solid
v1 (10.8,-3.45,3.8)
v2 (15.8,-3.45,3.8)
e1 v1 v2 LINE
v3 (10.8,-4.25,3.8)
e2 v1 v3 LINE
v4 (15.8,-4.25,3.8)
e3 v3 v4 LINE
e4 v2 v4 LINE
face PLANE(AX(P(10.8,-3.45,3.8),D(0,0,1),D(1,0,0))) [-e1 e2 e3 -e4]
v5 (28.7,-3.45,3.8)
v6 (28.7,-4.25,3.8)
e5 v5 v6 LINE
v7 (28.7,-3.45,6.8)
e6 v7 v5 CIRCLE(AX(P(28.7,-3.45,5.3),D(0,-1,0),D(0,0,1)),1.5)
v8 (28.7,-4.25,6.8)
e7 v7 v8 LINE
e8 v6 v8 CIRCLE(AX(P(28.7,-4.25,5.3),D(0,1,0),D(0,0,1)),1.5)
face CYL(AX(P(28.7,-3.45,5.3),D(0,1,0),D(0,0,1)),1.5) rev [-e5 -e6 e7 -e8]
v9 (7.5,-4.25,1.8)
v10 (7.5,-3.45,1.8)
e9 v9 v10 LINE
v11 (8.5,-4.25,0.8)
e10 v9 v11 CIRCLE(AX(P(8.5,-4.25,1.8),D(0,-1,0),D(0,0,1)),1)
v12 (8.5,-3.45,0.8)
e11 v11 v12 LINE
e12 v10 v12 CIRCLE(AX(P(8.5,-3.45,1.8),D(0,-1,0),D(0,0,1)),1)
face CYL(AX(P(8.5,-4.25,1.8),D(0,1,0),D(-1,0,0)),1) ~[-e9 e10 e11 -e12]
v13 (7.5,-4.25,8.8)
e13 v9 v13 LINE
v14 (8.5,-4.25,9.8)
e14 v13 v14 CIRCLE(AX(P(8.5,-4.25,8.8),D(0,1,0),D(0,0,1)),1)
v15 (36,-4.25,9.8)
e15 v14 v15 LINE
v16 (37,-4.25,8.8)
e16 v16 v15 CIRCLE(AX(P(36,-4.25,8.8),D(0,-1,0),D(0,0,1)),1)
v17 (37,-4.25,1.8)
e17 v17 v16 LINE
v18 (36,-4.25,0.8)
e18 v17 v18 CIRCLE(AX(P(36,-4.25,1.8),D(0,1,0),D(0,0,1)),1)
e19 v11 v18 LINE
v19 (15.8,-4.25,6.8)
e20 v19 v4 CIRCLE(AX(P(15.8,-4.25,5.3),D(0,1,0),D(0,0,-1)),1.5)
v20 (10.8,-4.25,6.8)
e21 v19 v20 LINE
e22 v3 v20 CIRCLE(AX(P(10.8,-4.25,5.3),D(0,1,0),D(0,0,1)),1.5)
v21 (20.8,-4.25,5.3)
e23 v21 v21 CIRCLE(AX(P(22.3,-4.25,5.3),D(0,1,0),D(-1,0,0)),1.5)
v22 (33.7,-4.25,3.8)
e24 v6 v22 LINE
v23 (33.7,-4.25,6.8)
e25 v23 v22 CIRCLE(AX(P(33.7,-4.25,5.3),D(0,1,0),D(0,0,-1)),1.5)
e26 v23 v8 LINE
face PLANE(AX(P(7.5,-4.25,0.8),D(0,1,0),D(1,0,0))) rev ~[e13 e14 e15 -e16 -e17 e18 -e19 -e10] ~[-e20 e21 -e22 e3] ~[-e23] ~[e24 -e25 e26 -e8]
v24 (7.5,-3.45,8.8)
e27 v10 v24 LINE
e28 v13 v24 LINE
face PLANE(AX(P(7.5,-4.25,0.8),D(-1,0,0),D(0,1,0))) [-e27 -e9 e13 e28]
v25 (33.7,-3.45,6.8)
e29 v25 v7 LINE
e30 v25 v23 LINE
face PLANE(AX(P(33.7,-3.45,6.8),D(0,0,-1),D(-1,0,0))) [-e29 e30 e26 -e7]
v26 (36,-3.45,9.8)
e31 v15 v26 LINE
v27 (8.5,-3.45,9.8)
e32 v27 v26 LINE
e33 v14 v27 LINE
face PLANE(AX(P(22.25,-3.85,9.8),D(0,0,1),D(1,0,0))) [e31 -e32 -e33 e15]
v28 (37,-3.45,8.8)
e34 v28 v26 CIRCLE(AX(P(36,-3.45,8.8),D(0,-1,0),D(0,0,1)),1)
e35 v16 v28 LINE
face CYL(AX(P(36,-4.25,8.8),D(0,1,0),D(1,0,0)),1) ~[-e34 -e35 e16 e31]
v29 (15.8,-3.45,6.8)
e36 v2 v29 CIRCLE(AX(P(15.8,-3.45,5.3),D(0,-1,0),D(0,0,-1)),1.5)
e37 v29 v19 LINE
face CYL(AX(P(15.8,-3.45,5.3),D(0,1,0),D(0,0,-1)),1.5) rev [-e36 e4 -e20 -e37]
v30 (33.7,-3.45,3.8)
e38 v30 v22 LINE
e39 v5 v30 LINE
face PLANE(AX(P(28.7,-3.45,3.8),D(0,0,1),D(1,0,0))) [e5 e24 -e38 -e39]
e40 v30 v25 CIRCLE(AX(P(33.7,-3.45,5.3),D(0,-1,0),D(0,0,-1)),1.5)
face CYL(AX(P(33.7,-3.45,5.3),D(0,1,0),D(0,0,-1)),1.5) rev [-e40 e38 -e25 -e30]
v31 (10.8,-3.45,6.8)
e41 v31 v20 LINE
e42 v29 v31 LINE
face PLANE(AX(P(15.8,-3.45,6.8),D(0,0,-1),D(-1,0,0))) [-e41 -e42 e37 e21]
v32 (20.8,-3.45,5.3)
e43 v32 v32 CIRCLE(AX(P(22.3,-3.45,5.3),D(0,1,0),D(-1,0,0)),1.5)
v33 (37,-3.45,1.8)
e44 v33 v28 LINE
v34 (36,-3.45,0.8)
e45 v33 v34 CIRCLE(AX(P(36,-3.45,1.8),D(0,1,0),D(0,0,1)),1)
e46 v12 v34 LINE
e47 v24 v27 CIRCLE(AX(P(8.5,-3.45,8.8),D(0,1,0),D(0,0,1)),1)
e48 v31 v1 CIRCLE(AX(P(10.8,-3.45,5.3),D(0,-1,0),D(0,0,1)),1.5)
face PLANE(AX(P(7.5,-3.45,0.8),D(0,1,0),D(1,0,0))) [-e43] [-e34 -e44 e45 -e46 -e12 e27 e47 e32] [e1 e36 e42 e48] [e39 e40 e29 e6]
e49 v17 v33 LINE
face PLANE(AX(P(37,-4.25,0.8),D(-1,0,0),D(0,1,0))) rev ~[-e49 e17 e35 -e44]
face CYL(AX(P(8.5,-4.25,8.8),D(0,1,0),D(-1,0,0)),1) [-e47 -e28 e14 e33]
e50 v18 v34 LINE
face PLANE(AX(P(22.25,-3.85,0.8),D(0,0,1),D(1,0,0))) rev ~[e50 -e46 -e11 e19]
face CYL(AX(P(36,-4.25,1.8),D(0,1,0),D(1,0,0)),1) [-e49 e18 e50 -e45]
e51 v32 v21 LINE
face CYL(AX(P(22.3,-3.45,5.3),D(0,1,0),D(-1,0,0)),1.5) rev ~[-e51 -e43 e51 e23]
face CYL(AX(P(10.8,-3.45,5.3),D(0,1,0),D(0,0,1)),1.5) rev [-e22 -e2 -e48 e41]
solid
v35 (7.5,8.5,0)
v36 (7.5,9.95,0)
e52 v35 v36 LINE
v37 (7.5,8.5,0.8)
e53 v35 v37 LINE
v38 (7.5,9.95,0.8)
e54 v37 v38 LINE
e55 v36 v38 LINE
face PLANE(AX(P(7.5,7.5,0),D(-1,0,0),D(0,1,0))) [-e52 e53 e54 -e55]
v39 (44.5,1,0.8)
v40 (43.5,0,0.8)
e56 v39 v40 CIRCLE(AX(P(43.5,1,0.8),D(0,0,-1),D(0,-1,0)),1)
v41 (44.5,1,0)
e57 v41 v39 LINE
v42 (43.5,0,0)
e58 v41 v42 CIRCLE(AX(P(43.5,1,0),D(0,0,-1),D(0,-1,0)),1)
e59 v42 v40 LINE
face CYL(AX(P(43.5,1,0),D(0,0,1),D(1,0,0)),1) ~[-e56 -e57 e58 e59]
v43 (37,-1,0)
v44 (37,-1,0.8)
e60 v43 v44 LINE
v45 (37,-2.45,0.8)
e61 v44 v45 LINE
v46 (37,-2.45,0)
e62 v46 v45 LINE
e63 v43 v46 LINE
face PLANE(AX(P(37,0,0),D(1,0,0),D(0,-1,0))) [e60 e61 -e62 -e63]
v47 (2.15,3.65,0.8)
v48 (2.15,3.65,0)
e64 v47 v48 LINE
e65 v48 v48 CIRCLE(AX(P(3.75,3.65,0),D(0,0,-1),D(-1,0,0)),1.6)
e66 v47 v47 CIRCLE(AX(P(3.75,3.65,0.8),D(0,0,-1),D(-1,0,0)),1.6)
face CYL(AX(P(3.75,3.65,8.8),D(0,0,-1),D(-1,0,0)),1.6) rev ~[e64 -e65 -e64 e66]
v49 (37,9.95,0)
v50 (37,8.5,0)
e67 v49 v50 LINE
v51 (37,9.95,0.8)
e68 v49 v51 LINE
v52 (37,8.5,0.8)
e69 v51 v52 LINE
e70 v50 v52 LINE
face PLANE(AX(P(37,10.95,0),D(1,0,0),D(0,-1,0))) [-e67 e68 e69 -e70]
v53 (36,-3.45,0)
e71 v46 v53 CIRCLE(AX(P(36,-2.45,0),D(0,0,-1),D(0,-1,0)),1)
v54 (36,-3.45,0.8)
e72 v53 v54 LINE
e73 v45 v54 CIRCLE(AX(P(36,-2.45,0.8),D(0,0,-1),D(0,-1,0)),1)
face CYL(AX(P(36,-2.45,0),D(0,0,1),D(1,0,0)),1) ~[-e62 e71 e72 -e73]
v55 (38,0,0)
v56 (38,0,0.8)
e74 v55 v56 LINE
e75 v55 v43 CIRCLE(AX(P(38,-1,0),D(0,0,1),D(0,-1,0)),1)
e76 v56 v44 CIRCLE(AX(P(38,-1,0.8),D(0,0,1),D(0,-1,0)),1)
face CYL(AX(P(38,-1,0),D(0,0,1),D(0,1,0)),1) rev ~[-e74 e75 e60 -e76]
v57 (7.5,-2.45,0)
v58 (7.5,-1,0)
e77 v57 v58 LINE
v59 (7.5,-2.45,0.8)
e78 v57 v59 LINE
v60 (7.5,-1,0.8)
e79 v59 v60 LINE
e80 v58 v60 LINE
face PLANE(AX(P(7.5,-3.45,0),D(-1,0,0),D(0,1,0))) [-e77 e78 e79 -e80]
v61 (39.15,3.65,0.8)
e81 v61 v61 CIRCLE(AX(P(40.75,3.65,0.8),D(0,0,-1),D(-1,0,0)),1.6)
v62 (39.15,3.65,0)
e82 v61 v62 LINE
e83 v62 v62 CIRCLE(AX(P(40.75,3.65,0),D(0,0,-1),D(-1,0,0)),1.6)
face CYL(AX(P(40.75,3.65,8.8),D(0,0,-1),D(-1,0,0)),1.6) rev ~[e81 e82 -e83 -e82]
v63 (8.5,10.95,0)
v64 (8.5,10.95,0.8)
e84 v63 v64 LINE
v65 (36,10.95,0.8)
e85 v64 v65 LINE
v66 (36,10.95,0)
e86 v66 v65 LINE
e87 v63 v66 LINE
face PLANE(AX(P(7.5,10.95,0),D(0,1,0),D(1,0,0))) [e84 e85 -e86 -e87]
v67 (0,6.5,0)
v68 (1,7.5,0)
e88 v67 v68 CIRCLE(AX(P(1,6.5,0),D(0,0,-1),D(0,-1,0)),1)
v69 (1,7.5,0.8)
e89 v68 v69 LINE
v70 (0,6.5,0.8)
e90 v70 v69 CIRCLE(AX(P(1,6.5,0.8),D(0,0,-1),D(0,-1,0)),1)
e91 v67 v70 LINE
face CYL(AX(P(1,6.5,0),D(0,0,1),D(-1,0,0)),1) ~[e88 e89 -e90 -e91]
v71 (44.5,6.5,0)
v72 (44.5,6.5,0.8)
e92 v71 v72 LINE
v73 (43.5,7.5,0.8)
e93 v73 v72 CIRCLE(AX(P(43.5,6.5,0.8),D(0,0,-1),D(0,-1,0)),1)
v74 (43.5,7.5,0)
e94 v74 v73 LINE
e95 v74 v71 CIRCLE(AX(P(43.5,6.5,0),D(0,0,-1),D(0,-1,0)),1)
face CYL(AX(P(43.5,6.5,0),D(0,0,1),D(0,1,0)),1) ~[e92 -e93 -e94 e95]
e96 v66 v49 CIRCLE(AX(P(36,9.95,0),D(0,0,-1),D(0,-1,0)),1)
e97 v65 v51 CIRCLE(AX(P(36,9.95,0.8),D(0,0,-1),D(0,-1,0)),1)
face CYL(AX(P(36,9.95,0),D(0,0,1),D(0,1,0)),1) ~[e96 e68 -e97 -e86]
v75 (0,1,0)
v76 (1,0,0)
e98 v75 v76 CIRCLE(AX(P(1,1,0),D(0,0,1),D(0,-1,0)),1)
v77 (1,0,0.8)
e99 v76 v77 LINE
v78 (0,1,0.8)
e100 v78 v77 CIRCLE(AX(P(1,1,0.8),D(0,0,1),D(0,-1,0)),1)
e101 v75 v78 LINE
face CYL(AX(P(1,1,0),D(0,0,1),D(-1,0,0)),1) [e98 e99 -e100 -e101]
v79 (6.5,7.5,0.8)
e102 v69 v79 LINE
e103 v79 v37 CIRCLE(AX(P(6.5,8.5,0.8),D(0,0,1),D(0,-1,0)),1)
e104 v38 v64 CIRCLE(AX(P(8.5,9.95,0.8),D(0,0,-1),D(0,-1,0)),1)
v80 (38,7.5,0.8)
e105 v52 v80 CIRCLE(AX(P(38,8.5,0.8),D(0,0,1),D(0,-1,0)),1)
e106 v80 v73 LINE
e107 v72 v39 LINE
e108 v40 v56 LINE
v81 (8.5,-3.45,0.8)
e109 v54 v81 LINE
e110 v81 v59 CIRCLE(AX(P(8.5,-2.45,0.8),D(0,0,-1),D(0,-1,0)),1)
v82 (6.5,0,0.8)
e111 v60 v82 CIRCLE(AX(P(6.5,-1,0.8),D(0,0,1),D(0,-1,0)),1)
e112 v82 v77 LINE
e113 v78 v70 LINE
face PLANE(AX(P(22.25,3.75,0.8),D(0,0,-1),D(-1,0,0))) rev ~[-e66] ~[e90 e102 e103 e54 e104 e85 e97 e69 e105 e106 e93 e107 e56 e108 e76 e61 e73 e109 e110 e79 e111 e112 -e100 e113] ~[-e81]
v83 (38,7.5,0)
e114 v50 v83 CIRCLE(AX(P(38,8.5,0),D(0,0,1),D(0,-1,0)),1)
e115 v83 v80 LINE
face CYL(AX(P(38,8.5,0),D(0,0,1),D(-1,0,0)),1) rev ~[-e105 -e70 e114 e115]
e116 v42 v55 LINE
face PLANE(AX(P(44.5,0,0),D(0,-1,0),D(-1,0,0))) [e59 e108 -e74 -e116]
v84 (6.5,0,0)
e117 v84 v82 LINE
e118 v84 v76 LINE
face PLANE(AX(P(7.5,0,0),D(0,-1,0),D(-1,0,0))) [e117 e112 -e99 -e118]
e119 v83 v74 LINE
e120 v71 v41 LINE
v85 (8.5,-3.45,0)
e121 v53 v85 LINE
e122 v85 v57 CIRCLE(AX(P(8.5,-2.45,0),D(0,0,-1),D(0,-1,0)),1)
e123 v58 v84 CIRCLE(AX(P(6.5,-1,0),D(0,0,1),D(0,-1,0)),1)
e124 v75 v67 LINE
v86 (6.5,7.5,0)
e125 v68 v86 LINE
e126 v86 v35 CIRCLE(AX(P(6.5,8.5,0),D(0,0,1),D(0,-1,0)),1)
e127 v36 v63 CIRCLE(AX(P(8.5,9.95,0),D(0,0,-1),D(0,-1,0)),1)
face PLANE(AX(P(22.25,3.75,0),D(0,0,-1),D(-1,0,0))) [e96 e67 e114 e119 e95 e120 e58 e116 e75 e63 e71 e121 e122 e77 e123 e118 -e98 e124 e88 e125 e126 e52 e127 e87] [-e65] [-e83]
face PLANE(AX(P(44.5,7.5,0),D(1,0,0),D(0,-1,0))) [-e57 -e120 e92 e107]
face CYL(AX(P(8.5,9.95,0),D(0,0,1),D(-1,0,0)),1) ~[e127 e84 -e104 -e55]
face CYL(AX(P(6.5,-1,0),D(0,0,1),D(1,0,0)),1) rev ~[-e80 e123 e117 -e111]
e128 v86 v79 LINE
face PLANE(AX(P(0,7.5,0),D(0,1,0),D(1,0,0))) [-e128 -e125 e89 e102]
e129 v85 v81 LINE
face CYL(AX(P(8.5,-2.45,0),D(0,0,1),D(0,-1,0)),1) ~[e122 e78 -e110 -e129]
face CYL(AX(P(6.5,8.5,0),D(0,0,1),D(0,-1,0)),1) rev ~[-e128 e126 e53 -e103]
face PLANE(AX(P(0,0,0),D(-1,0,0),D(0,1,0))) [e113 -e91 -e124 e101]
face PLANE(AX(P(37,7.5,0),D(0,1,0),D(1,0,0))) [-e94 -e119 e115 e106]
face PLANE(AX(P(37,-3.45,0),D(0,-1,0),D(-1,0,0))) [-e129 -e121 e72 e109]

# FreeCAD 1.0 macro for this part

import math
import FreeCAD as App
import Part
import Sketcher
Q = App.Units.Quantity


def edges_at(feature, points):
    """Names of the edges that pass closest to the given points."""
    edges = feature.Shape.Edges
    near = lambda p: min(range(len(edges)), key=lambda i: edges[i].distToShape(Part.Vertex(*p))[0])
    return sorted({f"Edge{near(p) + 1}" for p in points})

doc = App.newDocument("Part")
params = doc.addObject("Spreadsheet::Sheet", "Params")
for row, (alias, value) in enumerate([
    ("sketch1_width", "7.5 mm"),
    ("sketch1_width2", "29.5 mm"),
    ("sketch1_height", "3.45 mm"),
    ("pad1_length", "0.8 mm"),
    ("fillet_radius", "1 mm"),
    ("sketch2_diameter", "3.2 mm"),
    ("hole_diameter", "3.2 mm"),
    ("hole_depth", "8 mm"),
    ("sketch3_width", "29.5 mm"),
    ("sketch3_height", "0.8 mm"),
    ("pad2_length", "9 mm"),
    ("fillet2_radius", "1 mm"),
    ("sketch4_diameter", "3 mm"),
    ("sketch4_width", "5 mm"),
    ("pocket1_length", "9 mm"),
], start=1):
    params.set(f"A{row}", alias)
    params.set(f"B{row}", "=" + value)
    params.setAlias(f"B{row}", alias)

body = doc.addObject("PartDesign::Body", "Body")

sketch1 = body.newObject("Sketcher::SketchObject", "Sketch")
sketch1.AttachmentSupport = (doc.getObject("XY_Plane"), [""])
sketch1.MapMode = "FlatFace"
sketch1.addGeometry(Part.LineSegment(App.Vector(0, 7.5, 0), App.Vector(0, 0, 0)), False)
sketch1.addGeometry(Part.LineSegment(App.Vector(0, 0, 0), App.Vector(7.5, 0, 0)), False)
sketch1.addGeometry(Part.LineSegment(App.Vector(7.5, 0, 0), App.Vector(7.5, -3.5, 0)), False)
sketch1.addGeometry(Part.LineSegment(App.Vector(7.5, -3.5, 0), App.Vector(37, -3.5, 0)), False)
sketch1.addGeometry(Part.LineSegment(App.Vector(37, -3.5, 0), App.Vector(37, 0, 0)), False)
sketch1.addGeometry(Part.LineSegment(App.Vector(37, 0, 0), App.Vector(44.5, 0, 0)), False)
sketch1.addGeometry(Part.LineSegment(App.Vector(44.5, 0, 0), App.Vector(44.5, 7.5, 0)), False)
sketch1.addGeometry(Part.LineSegment(App.Vector(44.5, 7.5, 0), App.Vector(37, 7.5, 0)), False)
sketch1.addGeometry(Part.LineSegment(App.Vector(37, 7.5, 0), App.Vector(37, 10.9, 0)), False)
sketch1.addGeometry(Part.LineSegment(App.Vector(37, 10.9, 0), App.Vector(7.5, 10.9, 0)), False)
sketch1.addGeometry(Part.LineSegment(App.Vector(7.5, 10.9, 0), App.Vector(7.5, 7.5, 0)), False)
sketch1.addGeometry(Part.LineSegment(App.Vector(7.5, 7.5, 0), App.Vector(0, 7.5, 0)), False)
sketch1.addConstraint(Sketcher.Constraint("Coincident", 0, 2, 1, 1))
sketch1.addConstraint(Sketcher.Constraint("Coincident", 1, 2, 2, 1))
sketch1.addConstraint(Sketcher.Constraint("Coincident", 2, 2, 3, 1))
sketch1.addConstraint(Sketcher.Constraint("Coincident", 3, 2, 4, 1))
sketch1.addConstraint(Sketcher.Constraint("Coincident", 4, 2, 5, 1))
sketch1.addConstraint(Sketcher.Constraint("Coincident", 5, 2, 6, 1))
sketch1.addConstraint(Sketcher.Constraint("Coincident", 6, 2, 7, 1))
sketch1.addConstraint(Sketcher.Constraint("Coincident", 7, 2, 8, 1))
sketch1.addConstraint(Sketcher.Constraint("Coincident", 8, 2, 9, 1))
sketch1.addConstraint(Sketcher.Constraint("Coincident", 9, 2, 10, 1))
sketch1.addConstraint(Sketcher.Constraint("Coincident", 10, 2, 11, 1))
sketch1.addConstraint(Sketcher.Constraint("Coincident", 11, 2, 0, 1))
sketch1.addConstraint(Sketcher.Constraint("Vertical", 0))
sketch1.addConstraint(Sketcher.Constraint("Horizontal", 1))
sketch1.addConstraint(Sketcher.Constraint("Vertical", 2))
sketch1.addConstraint(Sketcher.Constraint("Horizontal", 3))
sketch1.addConstraint(Sketcher.Constraint("Vertical", 4))
sketch1.addConstraint(Sketcher.Constraint("Horizontal", 5))
sketch1.addConstraint(Sketcher.Constraint("Vertical", 6))
sketch1.addConstraint(Sketcher.Constraint("Horizontal", 7))
sketch1.addConstraint(Sketcher.Constraint("Vertical", 8))
sketch1.addConstraint(Sketcher.Constraint("Horizontal", 9))
sketch1.addConstraint(Sketcher.Constraint("Vertical", 10))
sketch1.addConstraint(Sketcher.Constraint("Horizontal", 11))
sketch1.addConstraint(Sketcher.Constraint("Coincident", 0, 2, -1, 1))
sketch1.addConstraint(Sketcher.Constraint("PointOnObject", 4, 2, -1))
sketch1.addConstraint(Sketcher.Constraint("Horizontal", 7, 2, 10, 2))
sketch1.addConstraint(Sketcher.Constraint("Vertical", 4, 2, 7, 2))
sketch1.addConstraint(Sketcher.Constraint("Vertical", 2, 2, 9, 2))
sketch1.addConstraint(Sketcher.Constraint("Equal", 1, 5))
sketch1.addConstraint(Sketcher.Constraint("Equal", 11, 0))
sketch1.addConstraint(Sketcher.Constraint("Equal", 4, 8))
sketch1.addConstraint(Sketcher.Constraint("DistanceX", 1, 1, 1, 2, Q("7.5 mm")))
sketch1.addConstraint(Sketcher.Constraint("DistanceX", 3, 1, 3, 2, Q("29.5 mm")))
sketch1.addConstraint(Sketcher.Constraint("DistanceY", 2, 2, 2, 1, Q("3.45 mm")))
sketch1.setExpression("Constraints[32]", "Params.sketch1_width")
sketch1.setExpression("Constraints[33]", "Params.sketch1_width2")
sketch1.setExpression("Constraints[34]", "Params.sketch1_height")
pad1 = body.newObject("PartDesign::Pad", "Pad")
pad1.Profile = sketch1
pad1.setExpression("Length", "Params.pad1_length")
doc.recompute()

fillet = body.newObject("PartDesign::Fillet", "Fillet")
fillet.Base = (pad1, edges_at(pad1, [
    (0, 0, 0.4),
    (0, 7.5, 0.4),
    (7.5, 7.5, 0.4),
    (7.5, 10.95, 0.4),
    (37, 10.95, 0.4),
    (37, 7.5, 0.4),
    (44.5, 7.5, 0.4),
    (44.5, 0, 0.4),
    (37, 0, 0.4),
    (37, -3.45, 0.4),
    (7.5, -3.45, 0.4),
    (7.5, 0, 0.4),
]))
fillet.setExpression("Radius", "Params.fillet_radius")

sketch2 = body.newObject("Sketcher::SketchObject", "Sketch001")
sketch2.AttachmentSupport = (doc.getObject("XY_Plane"), [""])
sketch2.MapMode = "FlatFace"
sketch2.AttachmentOffset = App.Placement(App.Vector(0, 0, 0.8), App.Rotation())
sketch2.addGeometry(Part.Circle(App.Vector(3.8, 3.6, 0), App.Vector(0, 0, 1), 1.6), False)
sketch2.addGeometry(Part.Circle(App.Vector(40.8, 3.6, 0), App.Vector(0, 0, 1), 1.6), False)
sketch2.addConstraint(Sketcher.Constraint("Equal", 0, 1))
sketch2.addConstraint(Sketcher.Constraint("Horizontal", 0, 3, 1, 3))
sketch2.addConstraint(Sketcher.Constraint("Diameter", 0, Q("3.2 mm")))
sketch2.addConstraint(Sketcher.Constraint("DistanceX", 0, 3, 1, 3, Q("37 mm")))
sketch2.addConstraint(Sketcher.Constraint("DistanceX", -1, 1, 0, 3, Q("3.75 mm")))
sketch2.addConstraint(Sketcher.Constraint("DistanceY", -1, 1, 0, 3, Q("3.65 mm")))
sketch2.setExpression("Constraints[2]", "Params.sketch2_diameter")
doc.recompute()
hole = body.newObject("PartDesign::Hole", "Hole")
hole.Profile = sketch2
hole.ThreadType = "None"
hole.setExpression("Diameter", "Params.hole_diameter")
hole.DepthType = "Dimension"
hole.setExpression("Depth", "Params.hole_depth")
hole.DrillPoint = "Angled"
hole.DrillPointAngle = 118
body2 = doc.addObject("PartDesign::Body", "Body001")

sketch3 = body2.newObject("Sketcher::SketchObject", "Sketch002")
sketch3.AttachmentSupport = (doc.getObject("XY_Plane001"), [""])
sketch3.MapMode = "FlatFace"
sketch3.AttachmentOffset = App.Placement(App.Vector(0, 0, 0.8), App.Rotation())
sketch3.addGeometry(Part.LineSegment(App.Vector(7.5, -3.5, 0), App.Vector(7.5, -4.2, 0)), False)
sketch3.addGeometry(Part.LineSegment(App.Vector(7.5, -4.2, 0), App.Vector(37, -4.2, 0)), False)
sketch3.addGeometry(Part.LineSegment(App.Vector(37, -4.2, 0), App.Vector(37, -3.5, 0)), False)
sketch3.addGeometry(Part.LineSegment(App.Vector(37, -3.5, 0), App.Vector(7.5, -3.5, 0)), False)
sketch3.addConstraint(Sketcher.Constraint("Coincident", 0, 2, 1, 1))
sketch3.addConstraint(Sketcher.Constraint("Coincident", 1, 2, 2, 1))
sketch3.addConstraint(Sketcher.Constraint("Coincident", 2, 2, 3, 1))
sketch3.addConstraint(Sketcher.Constraint("Coincident", 3, 2, 0, 1))
sketch3.addConstraint(Sketcher.Constraint("Vertical", 0))
sketch3.addConstraint(Sketcher.Constraint("Horizontal", 1))
sketch3.addConstraint(Sketcher.Constraint("Vertical", 2))
sketch3.addConstraint(Sketcher.Constraint("Horizontal", 3))
sketch3.addConstraint(Sketcher.Constraint("DistanceX", 1, 1, 1, 2, Q("29.5 mm")))
sketch3.addConstraint(Sketcher.Constraint("DistanceY", 0, 2, 0, 1, Q("0.8 mm")))
sketch3.addConstraint(Sketcher.Constraint("DistanceX", -1, 1, 1, 2, Q("37 mm")))
sketch3.addConstraint(Sketcher.Constraint("DistanceY", 0, 2, -1, 1, Q("4.25 mm")))
sketch3.setExpression("Constraints[8]", "Params.sketch3_width")
sketch3.setExpression("Constraints[9]", "Params.sketch3_height")
pad2 = body2.newObject("PartDesign::Pad", "Pad001")
pad2.Profile = sketch3
pad2.setExpression("Length", "Params.pad2_length")
doc.recompute()

fillet2 = body2.newObject("PartDesign::Fillet", "Fillet001")
fillet2.Base = (pad2, edges_at(pad2, [
    (37, -3.85, 9.8),
    (7.5, -3.85, 9.8),
    (37, -3.85, 0.8),
    (7.5, -3.85, 0.8),
]))
fillet2.setExpression("Radius", "Params.fillet2_radius")

sketch4 = body2.newObject("Sketcher::SketchObject", "Sketch003")
sketch4.AttachmentSupport = (doc.getObject("XZ_Plane001"), [""])
sketch4.MapMode = "FlatFace"
sketch4.AttachmentOffset = App.Placement(App.Vector(0, 0, 3.45), App.Rotation())
sketch4.addGeometry(Part.Circle(App.Vector(22.3, 5.3, 0), App.Vector(0, 0, 1), 1.5), False)
sketch4.addGeometry(Part.LineSegment(App.Vector(15.8, 3.8, 0), App.Vector(10.8, 3.8, 0)), False)
sketch4.addGeometry(Part.ArcOfCircle(Part.Circle(App.Vector(10.8, 5.3, 0), App.Vector(0, 0, 1), 1.5), math.radians(90), math.radians(270)), False)
sketch4.addGeometry(Part.LineSegment(App.Vector(10.8, 6.8, 0), App.Vector(15.8, 6.8, 0)), False)
sketch4.addGeometry(Part.ArcOfCircle(Part.Circle(App.Vector(15.8, 5.3, 0), App.Vector(0, 0, 1), 1.5), math.radians(-90), math.radians(90)), False)
sketch4.addGeometry(Part.LineSegment(App.Vector(33.7, 3.8, 0), App.Vector(28.7, 3.8, 0)), False)
sketch4.addGeometry(Part.ArcOfCircle(Part.Circle(App.Vector(28.7, 5.3, 0), App.Vector(0, 0, 1), 1.5), math.radians(90), math.radians(270)), False)
sketch4.addGeometry(Part.LineSegment(App.Vector(28.7, 6.8, 0), App.Vector(33.7, 6.8, 0)), False)
sketch4.addGeometry(Part.ArcOfCircle(Part.Circle(App.Vector(33.7, 5.3, 0), App.Vector(0, 0, 1), 1.5), math.radians(-90), math.radians(90)), False)
sketch4.addConstraint(Sketcher.Constraint("Tangent", 1, 2, 2, 2))
sketch4.addConstraint(Sketcher.Constraint("Tangent", 2, 1, 3, 1))
sketch4.addConstraint(Sketcher.Constraint("Tangent", 3, 2, 4, 2))
sketch4.addConstraint(Sketcher.Constraint("Tangent", 4, 1, 1, 1))
sketch4.addConstraint(Sketcher.Constraint("Tangent", 5, 2, 6, 2))
sketch4.addConstraint(Sketcher.Constraint("Tangent", 6, 1, 7, 1))
sketch4.addConstraint(Sketcher.Constraint("Tangent", 7, 2, 8, 2))
sketch4.addConstraint(Sketcher.Constraint("Tangent", 8, 1, 5, 1))
sketch4.addConstraint(Sketcher.Constraint("Horizontal", 1))
sketch4.addConstraint(Sketcher.Constraint("Horizontal", 3))
sketch4.addConstraint(Sketcher.Constraint("Horizontal", 5))
sketch4.addConstraint(Sketcher.Constraint("Horizontal", 7))
sketch4.addConstraint(Sketcher.Constraint("Equal", 0, 2))
sketch4.addConstraint(Sketcher.Constraint("Equal", 4, 6))
sketch4.addConstraint(Sketcher.Constraint("Horizontal", 0, 3, 2, 3))
sketch4.addConstraint(Sketcher.Constraint("Horizontal", 4, 3, 6, 3))
sketch4.addConstraint(Sketcher.Constraint("Equal", 3, 5))
sketch4.addConstraint(Sketcher.Constraint("Diameter", 0, Q("3 mm")))
sketch4.addConstraint(Sketcher.Constraint("DistanceX", 1, 2, 1, 1, Q("5 mm")))
sketch4.addConstraint(Sketcher.Constraint("DistanceX", -1, 1, 0, 3, Q("22.3 mm")))
sketch4.addConstraint(Sketcher.Constraint("DistanceY", -1, 1, 0, 3, Q("5.3 mm")))
sketch4.addConstraint(Sketcher.Constraint("DistanceX", -1, 1, 2, 3, Q("10.8 mm")))
sketch4.addConstraint(Sketcher.Constraint("DistanceX", -1, 1, 6, 3, Q("28.7 mm")))
sketch4.setExpression("Constraints[17]", "Params.sketch4_diameter")
sketch4.setExpression("Constraints[18]", "Params.sketch4_width")
pocket1 = body2.newObject("PartDesign::Pocket", "Pocket")
pocket1.Profile = sketch4
pocket1.setExpression("Length", "Params.pocket1_length")
pocket1.Reversed = True

doc.recompute()
